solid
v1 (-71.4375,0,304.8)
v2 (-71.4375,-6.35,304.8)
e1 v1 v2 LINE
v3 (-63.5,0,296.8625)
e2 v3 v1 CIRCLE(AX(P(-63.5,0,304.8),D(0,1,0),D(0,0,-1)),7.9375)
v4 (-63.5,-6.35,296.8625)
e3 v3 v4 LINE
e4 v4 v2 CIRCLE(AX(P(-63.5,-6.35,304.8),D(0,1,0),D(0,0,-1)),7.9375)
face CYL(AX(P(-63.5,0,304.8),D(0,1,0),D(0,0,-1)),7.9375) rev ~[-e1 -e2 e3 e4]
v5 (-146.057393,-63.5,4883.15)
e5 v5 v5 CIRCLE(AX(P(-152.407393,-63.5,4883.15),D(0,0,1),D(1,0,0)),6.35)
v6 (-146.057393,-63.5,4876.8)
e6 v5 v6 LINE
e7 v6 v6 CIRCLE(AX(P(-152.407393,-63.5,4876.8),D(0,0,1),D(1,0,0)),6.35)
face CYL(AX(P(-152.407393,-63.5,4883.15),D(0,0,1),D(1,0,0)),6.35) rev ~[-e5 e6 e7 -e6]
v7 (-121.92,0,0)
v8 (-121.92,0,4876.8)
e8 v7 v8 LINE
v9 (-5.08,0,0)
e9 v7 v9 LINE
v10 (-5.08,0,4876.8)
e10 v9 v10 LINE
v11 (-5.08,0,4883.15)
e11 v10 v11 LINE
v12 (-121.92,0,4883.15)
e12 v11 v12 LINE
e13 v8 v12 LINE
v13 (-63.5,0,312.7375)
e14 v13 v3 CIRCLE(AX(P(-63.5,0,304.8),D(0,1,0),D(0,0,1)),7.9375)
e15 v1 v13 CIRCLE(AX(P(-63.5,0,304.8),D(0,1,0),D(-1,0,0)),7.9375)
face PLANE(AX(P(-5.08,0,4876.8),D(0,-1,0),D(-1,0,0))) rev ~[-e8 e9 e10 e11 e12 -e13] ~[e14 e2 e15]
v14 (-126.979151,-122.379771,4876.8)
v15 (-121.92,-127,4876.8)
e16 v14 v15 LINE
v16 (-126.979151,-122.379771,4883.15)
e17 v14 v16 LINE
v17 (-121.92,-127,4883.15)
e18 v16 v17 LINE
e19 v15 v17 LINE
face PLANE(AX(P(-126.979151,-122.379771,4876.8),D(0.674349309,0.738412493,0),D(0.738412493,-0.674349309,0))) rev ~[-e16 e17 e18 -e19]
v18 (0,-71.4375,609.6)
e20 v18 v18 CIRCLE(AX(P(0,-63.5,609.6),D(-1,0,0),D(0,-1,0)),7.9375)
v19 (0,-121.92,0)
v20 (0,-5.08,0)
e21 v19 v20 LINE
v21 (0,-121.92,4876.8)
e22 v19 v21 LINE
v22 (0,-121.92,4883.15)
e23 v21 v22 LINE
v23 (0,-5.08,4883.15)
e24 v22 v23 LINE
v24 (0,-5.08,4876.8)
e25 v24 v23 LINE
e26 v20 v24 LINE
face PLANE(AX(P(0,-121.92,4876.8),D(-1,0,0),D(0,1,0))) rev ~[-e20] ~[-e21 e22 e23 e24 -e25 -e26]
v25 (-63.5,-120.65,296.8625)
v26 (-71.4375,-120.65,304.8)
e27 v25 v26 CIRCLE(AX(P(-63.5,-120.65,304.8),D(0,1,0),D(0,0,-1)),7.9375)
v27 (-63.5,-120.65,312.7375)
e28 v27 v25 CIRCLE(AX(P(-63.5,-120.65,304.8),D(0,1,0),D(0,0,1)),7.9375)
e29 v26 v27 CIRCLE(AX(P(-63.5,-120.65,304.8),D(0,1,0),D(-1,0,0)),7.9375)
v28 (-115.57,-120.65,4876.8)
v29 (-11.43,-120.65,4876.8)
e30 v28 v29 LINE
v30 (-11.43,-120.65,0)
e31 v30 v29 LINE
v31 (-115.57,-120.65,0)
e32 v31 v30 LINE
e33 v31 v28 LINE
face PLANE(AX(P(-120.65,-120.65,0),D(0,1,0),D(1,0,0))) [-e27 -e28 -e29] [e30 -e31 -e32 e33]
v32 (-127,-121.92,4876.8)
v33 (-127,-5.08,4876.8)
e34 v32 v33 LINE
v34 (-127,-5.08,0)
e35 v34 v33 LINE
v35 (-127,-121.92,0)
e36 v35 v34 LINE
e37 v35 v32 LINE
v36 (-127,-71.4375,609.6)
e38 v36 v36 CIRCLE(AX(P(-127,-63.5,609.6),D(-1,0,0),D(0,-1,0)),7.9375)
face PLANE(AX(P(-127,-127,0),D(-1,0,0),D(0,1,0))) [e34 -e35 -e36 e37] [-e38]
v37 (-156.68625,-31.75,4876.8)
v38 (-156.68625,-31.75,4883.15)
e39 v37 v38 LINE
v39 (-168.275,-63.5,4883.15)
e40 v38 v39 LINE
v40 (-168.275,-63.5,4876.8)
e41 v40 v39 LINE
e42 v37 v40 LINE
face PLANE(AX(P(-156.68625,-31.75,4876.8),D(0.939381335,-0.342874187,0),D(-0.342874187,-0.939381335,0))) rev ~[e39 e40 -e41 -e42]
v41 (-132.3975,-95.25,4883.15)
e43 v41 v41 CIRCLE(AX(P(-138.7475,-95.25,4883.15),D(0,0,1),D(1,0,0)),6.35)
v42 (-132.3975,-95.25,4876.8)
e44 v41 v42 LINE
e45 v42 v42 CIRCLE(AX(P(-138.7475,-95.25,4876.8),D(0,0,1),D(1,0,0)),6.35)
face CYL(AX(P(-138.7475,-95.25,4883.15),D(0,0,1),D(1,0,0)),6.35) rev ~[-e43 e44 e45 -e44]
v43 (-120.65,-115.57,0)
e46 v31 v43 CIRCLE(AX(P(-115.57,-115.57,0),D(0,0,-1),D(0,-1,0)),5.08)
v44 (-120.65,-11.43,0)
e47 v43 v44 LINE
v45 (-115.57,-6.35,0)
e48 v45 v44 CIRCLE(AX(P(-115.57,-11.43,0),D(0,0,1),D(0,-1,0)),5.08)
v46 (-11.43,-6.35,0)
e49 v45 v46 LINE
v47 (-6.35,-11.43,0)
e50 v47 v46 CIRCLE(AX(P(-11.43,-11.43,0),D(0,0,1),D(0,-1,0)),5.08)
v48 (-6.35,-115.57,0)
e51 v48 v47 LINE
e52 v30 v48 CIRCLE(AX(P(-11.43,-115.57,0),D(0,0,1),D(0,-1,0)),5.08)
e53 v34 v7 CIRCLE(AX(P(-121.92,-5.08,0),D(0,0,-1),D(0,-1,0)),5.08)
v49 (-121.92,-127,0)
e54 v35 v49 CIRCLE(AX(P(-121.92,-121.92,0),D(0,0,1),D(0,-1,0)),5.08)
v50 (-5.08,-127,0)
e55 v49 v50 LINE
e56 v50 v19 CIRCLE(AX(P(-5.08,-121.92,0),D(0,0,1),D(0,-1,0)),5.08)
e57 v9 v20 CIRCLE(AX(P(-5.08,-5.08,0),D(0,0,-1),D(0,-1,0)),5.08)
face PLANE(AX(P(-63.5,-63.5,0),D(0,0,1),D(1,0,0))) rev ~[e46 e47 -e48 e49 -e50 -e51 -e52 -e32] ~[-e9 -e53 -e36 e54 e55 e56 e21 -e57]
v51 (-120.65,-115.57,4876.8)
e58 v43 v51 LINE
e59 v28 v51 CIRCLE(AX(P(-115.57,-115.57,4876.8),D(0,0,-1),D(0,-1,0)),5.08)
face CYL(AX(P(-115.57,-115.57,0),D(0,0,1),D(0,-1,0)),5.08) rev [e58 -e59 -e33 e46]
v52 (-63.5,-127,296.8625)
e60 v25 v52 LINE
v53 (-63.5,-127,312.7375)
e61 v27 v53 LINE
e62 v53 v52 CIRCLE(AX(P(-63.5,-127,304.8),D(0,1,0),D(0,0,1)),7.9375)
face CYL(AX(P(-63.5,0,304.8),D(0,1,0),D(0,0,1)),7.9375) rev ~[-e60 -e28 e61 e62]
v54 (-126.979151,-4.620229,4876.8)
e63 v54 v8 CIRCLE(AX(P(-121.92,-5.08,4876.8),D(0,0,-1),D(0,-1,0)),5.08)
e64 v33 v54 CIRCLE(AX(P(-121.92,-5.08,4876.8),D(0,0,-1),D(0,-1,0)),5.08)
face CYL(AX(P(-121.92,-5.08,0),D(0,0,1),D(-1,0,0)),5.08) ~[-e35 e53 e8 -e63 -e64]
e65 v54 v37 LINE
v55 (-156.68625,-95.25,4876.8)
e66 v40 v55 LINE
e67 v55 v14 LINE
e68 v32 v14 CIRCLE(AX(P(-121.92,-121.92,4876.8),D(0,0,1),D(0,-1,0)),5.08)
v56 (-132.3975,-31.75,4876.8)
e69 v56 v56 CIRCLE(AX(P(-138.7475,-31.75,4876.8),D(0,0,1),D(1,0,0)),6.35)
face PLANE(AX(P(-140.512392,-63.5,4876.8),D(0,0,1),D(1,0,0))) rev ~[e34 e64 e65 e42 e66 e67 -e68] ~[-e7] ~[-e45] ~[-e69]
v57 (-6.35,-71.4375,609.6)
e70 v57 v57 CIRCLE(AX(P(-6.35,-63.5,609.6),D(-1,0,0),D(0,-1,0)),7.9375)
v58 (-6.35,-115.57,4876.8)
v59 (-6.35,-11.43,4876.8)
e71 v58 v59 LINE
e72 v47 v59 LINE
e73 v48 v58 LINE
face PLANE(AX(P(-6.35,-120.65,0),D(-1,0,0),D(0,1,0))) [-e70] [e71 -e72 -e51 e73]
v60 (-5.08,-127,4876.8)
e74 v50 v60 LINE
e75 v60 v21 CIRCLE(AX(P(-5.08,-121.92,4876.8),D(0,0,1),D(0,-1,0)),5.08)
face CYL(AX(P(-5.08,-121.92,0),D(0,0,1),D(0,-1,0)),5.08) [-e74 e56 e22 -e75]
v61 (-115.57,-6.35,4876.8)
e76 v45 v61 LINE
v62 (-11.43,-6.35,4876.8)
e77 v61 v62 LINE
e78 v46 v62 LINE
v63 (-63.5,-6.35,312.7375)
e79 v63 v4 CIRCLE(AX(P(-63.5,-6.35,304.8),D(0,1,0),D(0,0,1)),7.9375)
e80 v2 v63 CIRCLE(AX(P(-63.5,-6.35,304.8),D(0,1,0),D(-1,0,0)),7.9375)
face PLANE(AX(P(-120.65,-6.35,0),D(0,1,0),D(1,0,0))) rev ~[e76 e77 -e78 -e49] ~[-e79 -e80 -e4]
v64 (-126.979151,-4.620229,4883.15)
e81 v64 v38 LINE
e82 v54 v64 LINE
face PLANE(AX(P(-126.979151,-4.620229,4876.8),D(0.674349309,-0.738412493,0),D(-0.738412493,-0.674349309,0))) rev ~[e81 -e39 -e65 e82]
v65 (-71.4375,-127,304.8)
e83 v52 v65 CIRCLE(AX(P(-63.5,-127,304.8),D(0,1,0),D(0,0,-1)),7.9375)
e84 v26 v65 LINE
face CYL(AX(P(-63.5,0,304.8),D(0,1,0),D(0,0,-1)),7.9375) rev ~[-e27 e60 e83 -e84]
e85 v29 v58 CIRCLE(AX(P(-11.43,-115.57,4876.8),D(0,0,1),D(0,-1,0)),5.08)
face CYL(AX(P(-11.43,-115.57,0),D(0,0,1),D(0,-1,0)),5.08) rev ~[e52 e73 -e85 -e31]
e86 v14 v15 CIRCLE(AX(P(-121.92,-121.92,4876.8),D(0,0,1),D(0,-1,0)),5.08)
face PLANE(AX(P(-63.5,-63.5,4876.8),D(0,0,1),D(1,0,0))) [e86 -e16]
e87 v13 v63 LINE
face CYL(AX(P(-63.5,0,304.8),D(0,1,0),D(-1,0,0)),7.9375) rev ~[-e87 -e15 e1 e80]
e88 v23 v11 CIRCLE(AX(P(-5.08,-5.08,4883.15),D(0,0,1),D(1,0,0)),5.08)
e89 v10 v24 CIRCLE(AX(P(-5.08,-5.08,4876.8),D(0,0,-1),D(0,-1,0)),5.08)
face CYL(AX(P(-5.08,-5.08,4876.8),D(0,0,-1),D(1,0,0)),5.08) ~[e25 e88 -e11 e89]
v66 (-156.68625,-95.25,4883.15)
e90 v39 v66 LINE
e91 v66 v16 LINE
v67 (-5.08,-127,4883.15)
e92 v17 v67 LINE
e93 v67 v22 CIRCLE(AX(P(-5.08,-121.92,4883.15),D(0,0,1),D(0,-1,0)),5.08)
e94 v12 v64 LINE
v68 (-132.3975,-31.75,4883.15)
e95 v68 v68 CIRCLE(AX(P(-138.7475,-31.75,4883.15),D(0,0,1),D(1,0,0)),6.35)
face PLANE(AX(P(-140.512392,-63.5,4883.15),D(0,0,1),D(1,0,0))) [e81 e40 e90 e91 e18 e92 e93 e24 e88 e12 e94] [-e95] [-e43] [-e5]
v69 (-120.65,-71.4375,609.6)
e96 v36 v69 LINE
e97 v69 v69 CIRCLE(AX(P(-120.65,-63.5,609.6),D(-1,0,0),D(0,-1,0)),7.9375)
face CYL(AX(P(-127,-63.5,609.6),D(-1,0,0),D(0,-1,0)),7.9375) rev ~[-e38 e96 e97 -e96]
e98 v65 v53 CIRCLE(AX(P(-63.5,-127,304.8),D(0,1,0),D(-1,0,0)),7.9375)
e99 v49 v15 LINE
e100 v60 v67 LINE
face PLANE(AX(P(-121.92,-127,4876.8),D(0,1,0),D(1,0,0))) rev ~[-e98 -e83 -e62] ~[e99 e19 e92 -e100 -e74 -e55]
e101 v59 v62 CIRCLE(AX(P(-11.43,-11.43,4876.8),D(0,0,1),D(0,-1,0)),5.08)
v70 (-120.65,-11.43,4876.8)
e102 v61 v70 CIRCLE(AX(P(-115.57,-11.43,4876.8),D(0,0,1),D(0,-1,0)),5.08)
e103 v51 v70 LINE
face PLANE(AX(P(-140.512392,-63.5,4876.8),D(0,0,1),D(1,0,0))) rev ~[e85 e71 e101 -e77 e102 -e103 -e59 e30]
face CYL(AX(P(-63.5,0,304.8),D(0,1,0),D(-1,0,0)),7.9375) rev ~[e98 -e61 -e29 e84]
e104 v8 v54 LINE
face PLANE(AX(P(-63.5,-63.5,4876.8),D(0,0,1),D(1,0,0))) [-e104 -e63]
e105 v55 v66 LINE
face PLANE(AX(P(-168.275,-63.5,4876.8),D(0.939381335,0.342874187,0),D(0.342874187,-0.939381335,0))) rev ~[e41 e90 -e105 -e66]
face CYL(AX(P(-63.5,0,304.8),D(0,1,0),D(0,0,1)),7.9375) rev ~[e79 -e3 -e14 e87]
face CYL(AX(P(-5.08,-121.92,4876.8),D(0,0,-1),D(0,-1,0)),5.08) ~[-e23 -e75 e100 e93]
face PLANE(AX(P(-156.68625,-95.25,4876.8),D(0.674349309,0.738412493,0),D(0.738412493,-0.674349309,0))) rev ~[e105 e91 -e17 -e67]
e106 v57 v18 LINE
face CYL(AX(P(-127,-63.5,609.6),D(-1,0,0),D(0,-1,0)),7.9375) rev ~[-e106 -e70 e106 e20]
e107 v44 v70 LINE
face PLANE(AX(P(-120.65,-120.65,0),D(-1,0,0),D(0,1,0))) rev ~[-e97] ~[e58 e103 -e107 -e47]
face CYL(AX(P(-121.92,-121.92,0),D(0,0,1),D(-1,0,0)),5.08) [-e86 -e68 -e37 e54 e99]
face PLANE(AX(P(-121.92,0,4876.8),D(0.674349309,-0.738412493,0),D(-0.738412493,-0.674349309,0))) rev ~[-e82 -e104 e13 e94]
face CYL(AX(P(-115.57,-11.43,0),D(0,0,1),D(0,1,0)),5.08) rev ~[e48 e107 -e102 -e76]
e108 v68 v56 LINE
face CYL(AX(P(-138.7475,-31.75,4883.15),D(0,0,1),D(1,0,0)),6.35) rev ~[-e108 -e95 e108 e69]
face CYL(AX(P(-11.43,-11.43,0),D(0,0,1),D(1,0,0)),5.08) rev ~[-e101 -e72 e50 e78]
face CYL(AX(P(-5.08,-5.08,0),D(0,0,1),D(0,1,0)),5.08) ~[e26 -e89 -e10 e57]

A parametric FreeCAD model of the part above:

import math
import FreeCAD as App
import Part
import Sketcher
from FreeCAD import Vector
Q = App.Units.Quantity


def edges_at(feature, points):
    """Names of the edges that pass closest to the given points."""
    edges = feature.Shape.Edges
    near = lambda p: min(range(len(edges)), key=lambda i: edges[i].distToShape(Part.Vertex(*p))[0])
    return sorted({f"Edge{near(p) + 1}" for p in points})

doc = App.newDocument("Part")
body = doc.addObject("PartDesign::Body", "Body")

# Sketch on XY plane
sketch1 = body.newObject("Sketcher::SketchObject", "Sketch")
sketch1.AttachmentSupport = (doc.getObject("XY_Plane"), [""])
sketch1.MapMode = "FlatFace"
sketch1.addGeometry([
    Part.LineSegment(Vector(-127, 0, 0), Vector(-127, -127, 0)),  # 0
    Part.LineSegment(Vector(-127, -127, 0), Vector(0, -127, 0)),  # 1
    Part.LineSegment(Vector(0, -127, 0), Vector(0, 0, 0)),  # 2
    Part.LineSegment(Vector(0, 0, 0), Vector(-127, 0, 0)),  # 3
    Part.LineSegment(Vector(-6.35, -120.65, 0), Vector(-120.65, -120.65, 0)),  # 4
    Part.LineSegment(Vector(-120.65, -120.65, 0), Vector(-120.65, -6.35, 0)),  # 5
    Part.LineSegment(Vector(-120.65, -6.35, 0), Vector(-6.35, -6.35, 0)),  # 6
    Part.LineSegment(Vector(-6.35, -6.35, 0), Vector(-6.35, -120.65, 0)),  # 7
], False)
sketch1.addConstraint([
    Sketcher.Constraint("Coincident", 0, 2, 1, 1),
    Sketcher.Constraint("Coincident", 1, 2, 2, 1),
    Sketcher.Constraint("Coincident", 2, 2, 3, 1),
    Sketcher.Constraint("Coincident", 3, 2, 0, 1),
    Sketcher.Constraint("Coincident", 4, 2, 5, 1),
    Sketcher.Constraint("Coincident", 5, 2, 6, 1),
    Sketcher.Constraint("Coincident", 6, 2, 7, 1),
    Sketcher.Constraint("Coincident", 7, 2, 4, 1),
    Sketcher.Constraint("Vertical", 0),
    Sketcher.Constraint("Horizontal", 1),
    Sketcher.Constraint("Vertical", 2),
    Sketcher.Constraint("Horizontal", 3),
    Sketcher.Constraint("Horizontal", 4),
    Sketcher.Constraint("Vertical", 5),
    Sketcher.Constraint("Horizontal", 6),
    Sketcher.Constraint("Vertical", 7),
    Sketcher.Constraint("Coincident", 2, 2, -1, 1),
    Sketcher.Constraint("Equal", 3, 0),
    Sketcher.Constraint("Equal", 6, 5),
    Sketcher.Constraint("DistanceX", 1, 1, 1, 2, Q("5 in")),
    Sketcher.Constraint("DistanceX", 4, 2, 4, 1, Q("4.5 in")),
    Sketcher.Constraint("DistanceX", 4, 2, -1, 1, Q("4.75 in")),
    Sketcher.Constraint("DistanceY", 4, 2, -1, 1, Q("4.75 in")),
])
pad1 = body.newObject("PartDesign::Pad", "Pad")
pad1.Profile = sketch1
pad1.Length = Q("192 in")
doc.recompute()

fillet = body.newObject("PartDesign::Fillet", "Fillet")
fillet.Base = (pad1, edges_at(pad1, [
    (-127, 0, 2438.4),
    (-6.35, -6.35, 2438.4),
    (0, -127, 2438.4),
    (-127, -127, 2438.4),
    (-120.65, -6.35, 2438.4),
    (-120.65, -120.65, 2438.4),
    (0, 0, 2438.4),
    (-6.35, -120.65, 2438.4),
]))
fillet.Radius = Q("0.2 in")

# Sketch on XZ plane
sketch2 = body.newObject("Sketcher::SketchObject", "Sketch001")
sketch2.AttachmentSupport = (doc.getObject("XZ_Plane"), [""])
sketch2.MapMode = "FlatFace"
sketch2.addGeometry([
    Part.ArcOfCircle(Part.Circle(Vector(-63.5, 304.8, 0), Vector(0, 0, 1), 7.9375), math.radians(-90), math.radians(90)),
    Part.ArcOfCircle(Part.Circle(Vector(-63.5, 304.8, 0), Vector(0, 0, 1), 7.9375), math.radians(180), math.radians(270)),
    Part.ArcOfCircle(Part.Circle(Vector(-63.5, 304.8, 0), Vector(0, 0, 1), 7.9375), math.radians(90), math.radians(180)),
], False)
sketch2.addConstraint([
    Sketcher.Constraint("Tangent", 0, 1, 1, 2),
    Sketcher.Constraint("Tangent", 1, 1, 2, 2),
    Sketcher.Constraint("Tangent", 2, 1, 0, 2),
    Sketcher.Constraint("Horizontal", 2, 3, 1, 1),
    Sketcher.Constraint("Vertical", 2, 3, 0, 1),
    Sketcher.Constraint("Vertical", 0, 1, 2, 1),
    Sketcher.Constraint("DistanceY", -1, 1, 0, 3, Q("12 in")),
    Sketcher.Constraint("Radius", 0, Q("0.3125 in")),
    Sketcher.Constraint("DistanceX", 0, 3, -1, 1, Q("2.5 in")),
])
pocket1 = body.newObject("PartDesign::Pocket", "Pocket")
pocket1.Profile = sketch2
pocket1.Length = Q("5 in")
pocket1.Reversed = True

# Sketch on YZ plane
sketch3 = body.newObject("Sketcher::SketchObject", "Sketch002")
sketch3.AttachmentSupport = (doc.getObject("YZ_Plane"), [""])
sketch3.MapMode = "FlatFace"
sketch3.AttachmentOffset = App.Placement(Vector(0, 0, -5 * 25.4), App.Rotation())
sketch3.addGeometry(Part.Circle(Vector(-63.5, 609.6, 0), Vector(0, 0, 1), 7.9375), False)
sketch3.addConstraint([
    Sketcher.Constraint("Diameter", 0, Q("0.625 in")),
    Sketcher.Constraint("DistanceY", -1, 1, 0, 3, Q("24 in")),
    Sketcher.Constraint("DistanceX", 0, 3, -1, 1, Q("2.5 in")),
])
pocket2 = body.newObject("PartDesign::Pocket", "Pocket001")
pocket2.Profile = sketch3
pocket2.Length = Q("5 in")
pocket2.Reversed = True

# Sketch on XY plane
sketch4 = body.newObject("Sketcher::SketchObject", "Sketch003")
sketch4.AttachmentSupport = (doc.getObject("XY_Plane"), [""])
sketch4.MapMode = "FlatFace"
sketch4.AttachmentOffset = App.Placement(Vector(0, 0, 192 * 25.4), App.Rotation())
sketch4.addGeometry([
    Part.LineSegment(Vector(-156.68625, -95.25, 0), Vector(-126.979151, -122.379771, 0)),  # 0
    Part.LineSegment(Vector(-126.979151, -122.379771, 0), Vector(-121.92, -127, 0)),  # 1
    Part.LineSegment(Vector(-121.92, -127, 0), Vector(-5.08, -127, 0)),  # 2
    Part.ArcOfCircle(Part.Circle(Vector(-5.08, -121.92, 0), Vector(0, 0, 1), 5.08), math.radians(-90), math.radians(0)),  # 3
    Part.LineSegment(Vector(0, -121.92, 0), Vector(0, -5.08, 0)),  # 4
    Part.ArcOfCircle(Part.Circle(Vector(-5.08, -5.08, 0), Vector(0, 0, 1), 5.08), math.radians(0), math.radians(90)),  # 5
    Part.LineSegment(Vector(-5.08, 0, 0), Vector(-121.92, 0, 0)),  # 6
    Part.LineSegment(Vector(-121.92, 0, 0), Vector(-126.979151, -4.620229, 0)),  # 7
    Part.LineSegment(Vector(-126.979151, -4.620229, 0), Vector(-156.68625, -31.75, 0)),  # 8
    Part.LineSegment(Vector(-156.68625, -31.75, 0), Vector(-168.275, -63.5, 0)),  # 9
    Part.LineSegment(Vector(-168.275, -63.5, 0), Vector(-156.68625, -95.25, 0)),  # 10
], False)
sketch4.addConstraint([
    Sketcher.Constraint("Coincident", 0, 2, 1, 1),
    Sketcher.Constraint("Coincident", 1, 2, 2, 1),
    Sketcher.Constraint("Tangent", 2, 2, 3, 1),
    Sketcher.Constraint("Tangent", 3, 2, 4, 1),
    Sketcher.Constraint("Tangent", 4, 2, 5, 1),
    Sketcher.Constraint("Tangent", 5, 2, 6, 1),
    Sketcher.Constraint("Coincident", 6, 2, 7, 1),
    Sketcher.Constraint("Coincident", 7, 2, 8, 1),
    Sketcher.Constraint("Coincident", 8, 2, 9, 1),
    Sketcher.Constraint("Coincident", 9, 2, 10, 1),
    Sketcher.Constraint("Coincident", 10, 2, 0, 1),
    Sketcher.Constraint("Horizontal", 2),
    Sketcher.Constraint("Vertical", 4),
    Sketcher.Constraint("Horizontal", 6),
    Sketcher.Constraint("Equal", 3, 5),
    Sketcher.Constraint("PointOnObject", 3, 2, -2),
    Sketcher.Constraint("PointOnObject", 5, 2, -1),
    Sketcher.Constraint("Parallel", 0, 1),
    Sketcher.Constraint("Parallel", 7, 8),
    Sketcher.Constraint("Vertical", 1, 2, 6, 2),
    Sketcher.Constraint("Vertical", 0, 2, 7, 2),
    Sketcher.Constraint("Vertical", 8, 2, 10, 2),
    Sketcher.Constraint("Equal", 6, 4),
    Sketcher.Constraint("Equal", 1, 7),
    Sketcher.Constraint("Equal", 9, 10),
    Sketcher.Constraint("Radius", 3, Q("0.2 in")),
    Sketcher.Constraint("DistanceX", 2, 1, 2, 2, Q("4.6 in")),
    Sketcher.Constraint("DistanceY", 10, 2, 8, 2, Q("2.5 in")),
    Sketcher.Constraint("DistanceX", 9, 2, -1, 1, Q("6.625 in")),
    Sketcher.Constraint("DistanceX", 8, 2, 5, 3, Q("5.96875 in")),
    Sketcher.Constraint("DistanceX", 8, 2, 7, 2, 29.707099),
])
pad2 = body.newObject("PartDesign::Pad", "Pad001")
pad2.Profile = sketch4
pad2.Length = Q("0.25 in")

# Sketch on XY plane
sketch5 = body.newObject("Sketcher::SketchObject", "Sketch004")
sketch5.AttachmentSupport = (doc.getObject("XY_Plane"), [""])
sketch5.MapMode = "FlatFace"
sketch5.AttachmentOffset = App.Placement(Vector(0, 0, 192.25 * 25.4), App.Rotation())
sketch5.addGeometry([
    Part.Circle(Vector(-138.7475, -31.75, 0), Vector(0, 0, 1), 6.35),
    Part.Circle(Vector(-152.407393, -63.5, 0), Vector(0, 0, 1), 6.35),
    Part.Circle(Vector(-138.7475, -95.25, 0), Vector(0, 0, 1), 6.35),
], False)
sketch5.addConstraint([
    Sketcher.Constraint("Equal", 0, 1),
    Sketcher.Constraint("Equal", 1, 2),
    Sketcher.Constraint("Vertical", 0, 3, 2, 3),
    Sketcher.Constraint("Diameter", 0, Q("0.5 in")),
    Sketcher.Constraint("DistanceY", 1, 3, -1, 1, Q("2.5 in")),
    Sketcher.Constraint("DistanceY", 2, 3, 0, 3, Q("2.5 in")),
    Sketcher.Constraint("DistanceY", 0, 3, -1, 1, Q("1.25 in")),
    Sketcher.Constraint("DistanceX", 0, 3, -1, 1, Q("5.4625 in")),
    Sketcher.Constraint("DistanceX", 1, 3, -1, 1, 152.407393),
])
pocket3 = body.newObject("PartDesign::Pocket", "Pocket002")
pocket3.Profile = sketch5
pocket3.Length = Q("0.25 in")

doc.recompute()
